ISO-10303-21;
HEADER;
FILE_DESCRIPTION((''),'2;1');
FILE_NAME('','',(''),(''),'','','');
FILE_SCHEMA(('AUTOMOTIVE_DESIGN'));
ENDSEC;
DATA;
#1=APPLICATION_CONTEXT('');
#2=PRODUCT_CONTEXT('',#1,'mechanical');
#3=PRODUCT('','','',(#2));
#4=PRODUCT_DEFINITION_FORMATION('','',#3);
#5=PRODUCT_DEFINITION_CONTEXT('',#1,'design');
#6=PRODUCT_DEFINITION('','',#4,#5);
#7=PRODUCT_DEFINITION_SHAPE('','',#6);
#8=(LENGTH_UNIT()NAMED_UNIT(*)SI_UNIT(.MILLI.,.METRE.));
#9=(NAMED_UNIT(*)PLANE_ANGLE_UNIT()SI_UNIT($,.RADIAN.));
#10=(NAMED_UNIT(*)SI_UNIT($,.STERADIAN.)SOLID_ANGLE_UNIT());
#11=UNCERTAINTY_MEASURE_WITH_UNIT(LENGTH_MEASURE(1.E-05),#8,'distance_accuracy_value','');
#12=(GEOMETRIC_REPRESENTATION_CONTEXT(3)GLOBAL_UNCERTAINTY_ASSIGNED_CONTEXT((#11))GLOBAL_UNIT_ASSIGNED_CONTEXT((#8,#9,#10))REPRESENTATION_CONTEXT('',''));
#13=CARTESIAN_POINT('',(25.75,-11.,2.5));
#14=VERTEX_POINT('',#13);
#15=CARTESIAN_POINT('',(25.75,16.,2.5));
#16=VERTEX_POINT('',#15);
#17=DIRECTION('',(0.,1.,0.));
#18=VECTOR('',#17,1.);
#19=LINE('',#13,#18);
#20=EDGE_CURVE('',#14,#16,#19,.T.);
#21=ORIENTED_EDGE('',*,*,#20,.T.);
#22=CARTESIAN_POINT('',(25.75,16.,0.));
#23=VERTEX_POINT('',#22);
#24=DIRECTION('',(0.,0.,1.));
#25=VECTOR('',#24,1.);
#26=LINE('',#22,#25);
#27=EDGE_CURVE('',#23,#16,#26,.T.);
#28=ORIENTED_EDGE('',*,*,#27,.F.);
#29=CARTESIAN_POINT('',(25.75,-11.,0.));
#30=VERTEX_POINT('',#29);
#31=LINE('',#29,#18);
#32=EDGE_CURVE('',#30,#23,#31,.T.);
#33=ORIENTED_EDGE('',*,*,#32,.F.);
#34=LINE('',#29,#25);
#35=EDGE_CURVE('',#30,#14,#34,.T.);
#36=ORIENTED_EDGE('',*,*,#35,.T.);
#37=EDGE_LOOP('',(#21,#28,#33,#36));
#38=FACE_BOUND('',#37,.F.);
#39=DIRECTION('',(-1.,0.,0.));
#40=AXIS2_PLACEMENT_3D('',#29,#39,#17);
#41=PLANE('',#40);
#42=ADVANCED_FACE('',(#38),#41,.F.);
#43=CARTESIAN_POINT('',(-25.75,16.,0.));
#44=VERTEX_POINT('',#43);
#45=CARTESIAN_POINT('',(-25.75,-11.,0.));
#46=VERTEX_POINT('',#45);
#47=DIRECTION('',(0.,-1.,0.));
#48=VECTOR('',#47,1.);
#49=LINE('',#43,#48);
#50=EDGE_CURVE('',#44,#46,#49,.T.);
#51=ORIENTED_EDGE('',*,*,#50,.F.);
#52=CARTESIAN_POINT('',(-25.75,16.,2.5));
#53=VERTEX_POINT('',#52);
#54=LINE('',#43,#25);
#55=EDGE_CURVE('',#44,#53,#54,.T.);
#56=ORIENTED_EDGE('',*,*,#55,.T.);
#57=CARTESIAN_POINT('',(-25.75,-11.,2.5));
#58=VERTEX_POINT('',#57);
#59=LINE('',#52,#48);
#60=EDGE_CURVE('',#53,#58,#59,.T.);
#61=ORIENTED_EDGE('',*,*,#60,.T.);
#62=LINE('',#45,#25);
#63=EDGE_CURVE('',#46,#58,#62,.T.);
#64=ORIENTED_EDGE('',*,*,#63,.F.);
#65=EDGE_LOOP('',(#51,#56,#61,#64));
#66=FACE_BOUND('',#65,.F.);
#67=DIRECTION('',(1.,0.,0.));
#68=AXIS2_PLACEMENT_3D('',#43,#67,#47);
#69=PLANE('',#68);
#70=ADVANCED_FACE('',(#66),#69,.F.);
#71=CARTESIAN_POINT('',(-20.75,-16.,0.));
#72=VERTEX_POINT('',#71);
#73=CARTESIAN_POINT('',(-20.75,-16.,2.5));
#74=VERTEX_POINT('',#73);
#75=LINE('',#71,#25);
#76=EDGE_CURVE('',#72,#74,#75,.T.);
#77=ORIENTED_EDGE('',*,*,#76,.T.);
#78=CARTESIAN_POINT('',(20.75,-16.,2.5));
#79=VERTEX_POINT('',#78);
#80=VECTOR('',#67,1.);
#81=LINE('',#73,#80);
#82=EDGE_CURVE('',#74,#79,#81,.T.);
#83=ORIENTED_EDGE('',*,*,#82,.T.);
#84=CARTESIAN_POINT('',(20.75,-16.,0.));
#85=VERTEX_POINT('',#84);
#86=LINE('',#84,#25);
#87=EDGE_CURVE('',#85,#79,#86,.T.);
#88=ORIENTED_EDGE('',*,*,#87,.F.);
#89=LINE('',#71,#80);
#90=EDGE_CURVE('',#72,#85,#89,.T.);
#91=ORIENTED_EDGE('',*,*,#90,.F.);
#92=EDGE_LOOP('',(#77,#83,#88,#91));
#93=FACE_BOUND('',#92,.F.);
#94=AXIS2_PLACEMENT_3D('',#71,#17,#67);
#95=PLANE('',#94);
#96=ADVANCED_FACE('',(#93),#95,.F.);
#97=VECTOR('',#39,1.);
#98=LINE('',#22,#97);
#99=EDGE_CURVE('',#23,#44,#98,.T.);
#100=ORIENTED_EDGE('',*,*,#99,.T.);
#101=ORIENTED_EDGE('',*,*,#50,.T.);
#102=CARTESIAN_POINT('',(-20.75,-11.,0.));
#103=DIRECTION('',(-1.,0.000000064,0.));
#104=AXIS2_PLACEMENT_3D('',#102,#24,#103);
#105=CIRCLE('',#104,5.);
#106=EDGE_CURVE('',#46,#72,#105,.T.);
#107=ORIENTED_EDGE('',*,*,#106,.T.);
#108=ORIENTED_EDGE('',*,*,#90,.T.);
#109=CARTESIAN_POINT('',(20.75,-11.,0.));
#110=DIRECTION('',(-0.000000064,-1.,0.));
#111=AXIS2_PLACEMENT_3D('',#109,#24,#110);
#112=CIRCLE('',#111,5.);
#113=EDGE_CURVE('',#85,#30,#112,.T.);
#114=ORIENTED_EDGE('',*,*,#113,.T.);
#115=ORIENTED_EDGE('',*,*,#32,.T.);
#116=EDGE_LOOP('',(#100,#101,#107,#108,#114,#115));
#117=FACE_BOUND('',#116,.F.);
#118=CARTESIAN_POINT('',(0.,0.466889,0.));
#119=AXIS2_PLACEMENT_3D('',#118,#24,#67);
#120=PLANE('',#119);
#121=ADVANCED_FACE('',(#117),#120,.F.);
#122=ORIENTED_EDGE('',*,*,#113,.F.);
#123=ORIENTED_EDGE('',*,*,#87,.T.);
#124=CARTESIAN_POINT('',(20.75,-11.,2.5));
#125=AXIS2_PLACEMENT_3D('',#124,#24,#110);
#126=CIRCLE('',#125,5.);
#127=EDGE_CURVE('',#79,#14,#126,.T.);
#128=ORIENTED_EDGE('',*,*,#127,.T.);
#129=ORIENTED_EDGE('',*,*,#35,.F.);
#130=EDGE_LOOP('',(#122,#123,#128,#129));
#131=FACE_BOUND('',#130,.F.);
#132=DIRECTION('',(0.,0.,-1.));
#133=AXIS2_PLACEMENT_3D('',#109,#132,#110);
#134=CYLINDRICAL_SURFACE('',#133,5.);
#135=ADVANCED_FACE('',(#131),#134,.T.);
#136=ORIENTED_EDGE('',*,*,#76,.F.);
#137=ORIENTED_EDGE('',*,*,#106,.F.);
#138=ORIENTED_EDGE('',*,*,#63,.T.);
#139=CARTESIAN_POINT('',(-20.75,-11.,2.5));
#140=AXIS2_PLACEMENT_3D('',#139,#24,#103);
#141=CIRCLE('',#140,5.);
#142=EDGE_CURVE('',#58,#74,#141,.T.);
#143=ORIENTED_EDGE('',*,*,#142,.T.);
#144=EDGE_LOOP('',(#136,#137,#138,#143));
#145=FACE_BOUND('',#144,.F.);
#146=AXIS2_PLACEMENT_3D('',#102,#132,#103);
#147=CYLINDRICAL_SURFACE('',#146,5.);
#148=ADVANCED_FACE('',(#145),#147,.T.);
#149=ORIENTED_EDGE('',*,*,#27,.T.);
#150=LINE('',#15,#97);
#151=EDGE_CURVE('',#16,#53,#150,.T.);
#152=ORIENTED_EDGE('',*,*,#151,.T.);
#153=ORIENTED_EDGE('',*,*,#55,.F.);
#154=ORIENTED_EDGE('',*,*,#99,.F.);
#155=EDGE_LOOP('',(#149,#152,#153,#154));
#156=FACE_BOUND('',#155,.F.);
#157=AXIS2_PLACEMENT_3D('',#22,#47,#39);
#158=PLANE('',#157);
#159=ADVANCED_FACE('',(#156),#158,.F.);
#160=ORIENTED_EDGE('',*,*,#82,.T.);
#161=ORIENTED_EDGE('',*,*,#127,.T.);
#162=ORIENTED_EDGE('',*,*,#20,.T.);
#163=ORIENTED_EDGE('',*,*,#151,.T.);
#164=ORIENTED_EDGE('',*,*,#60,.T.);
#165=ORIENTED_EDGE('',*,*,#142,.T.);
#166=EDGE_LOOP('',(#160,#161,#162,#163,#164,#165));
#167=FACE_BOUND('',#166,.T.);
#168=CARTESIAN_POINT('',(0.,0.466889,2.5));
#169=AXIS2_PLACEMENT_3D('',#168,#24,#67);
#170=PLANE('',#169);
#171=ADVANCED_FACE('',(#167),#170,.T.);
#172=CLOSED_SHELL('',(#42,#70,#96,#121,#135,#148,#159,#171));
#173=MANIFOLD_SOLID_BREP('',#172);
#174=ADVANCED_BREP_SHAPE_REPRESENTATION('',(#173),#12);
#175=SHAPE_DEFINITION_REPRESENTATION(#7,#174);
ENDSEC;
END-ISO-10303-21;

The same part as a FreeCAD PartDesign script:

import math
import FreeCAD as App
import Part
import Sketcher

V = App.Vector

doc = App.newDocument("Part")
body = doc.addObject("PartDesign::Body", "Body")

# Sketch on XY plane
sketch1 = doc.addObject("Sketcher::SketchObject", "Sketch")
body.addObject(sketch1)
sketch1.AttachmentSupport = (doc.XY_Plane, [""])
sketch1.MapMode = "FlatFace"
sketch1.addGeometry(Part.ArcOfCircle(Part.Circle(V(-20.8, -11, 0), V(0, 0, 1), 5), math.radians(180), math.radians(270)), False)
sketch1.addGeometry(Part.LineSegment(V(-20.8, -16, 0), V(20.8, -16, 0)), False)
sketch1.addGeometry(Part.ArcOfCircle(Part.Circle(V(20.8, -11, 0), V(0, 0, 1), 5), math.radians(-90), math.radians(0)), False)
sketch1.addGeometry(Part.LineSegment(V(25.8, -11, 0), V(25.8, 16, 0)), False)
sketch1.addGeometry(Part.LineSegment(V(25.8, 16, 0), V(-25.8, 16, 0)), False)
sketch1.addGeometry(Part.LineSegment(V(-25.8, 16, 0), V(-25.8, -11, 0)), False)
sketch1.addConstraint(Sketcher.Constraint("Tangent", 0, 2, 1, 1))
sketch1.addConstraint(Sketcher.Constraint("Tangent", 1, 2, 2, 1))
sketch1.addConstraint(Sketcher.Constraint("Tangent", 2, 2, 3, 1))
sketch1.addConstraint(Sketcher.Constraint("Coincident", 3, 2, 4, 1))
sketch1.addConstraint(Sketcher.Constraint("Coincident", 4, 2, 5, 1))
sketch1.addConstraint(Sketcher.Constraint("Tangent", 5, 2, 0, 1))
sketch1.addConstraint(Sketcher.Constraint("Horizontal", 1))
sketch1.addConstraint(Sketcher.Constraint("Vertical", 3))
sketch1.addConstraint(Sketcher.Constraint("Horizontal", 4))
sketch1.addConstraint(Sketcher.Constraint("Vertical", 5))
sketch1.addConstraint(Sketcher.Constraint("Equal", 0, 2))
sketch1.addConstraint(Sketcher.Constraint("Radius", 0, 5.0))
sketch1.addConstraint(Sketcher.Constraint("DistanceY", 3, 1, 3, 2, 27.0))
sketch1.addConstraint(Sketcher.Constraint("DistanceX", 1, 1, 1, 2, 41.5))
sketch1.addConstraint(Sketcher.Constraint("DistanceY", 0, 3, -1, 1, 11.0))
sketch1.addConstraint(Sketcher.Constraint("DistanceX", 0, 3, -1, 1, 20.75))
pad1 = doc.addObject("PartDesign::Pad", "Pad")
body.addObject(pad1)
pad1.Profile = sketch1
pad1.Length = 2.5

doc.recompute()
